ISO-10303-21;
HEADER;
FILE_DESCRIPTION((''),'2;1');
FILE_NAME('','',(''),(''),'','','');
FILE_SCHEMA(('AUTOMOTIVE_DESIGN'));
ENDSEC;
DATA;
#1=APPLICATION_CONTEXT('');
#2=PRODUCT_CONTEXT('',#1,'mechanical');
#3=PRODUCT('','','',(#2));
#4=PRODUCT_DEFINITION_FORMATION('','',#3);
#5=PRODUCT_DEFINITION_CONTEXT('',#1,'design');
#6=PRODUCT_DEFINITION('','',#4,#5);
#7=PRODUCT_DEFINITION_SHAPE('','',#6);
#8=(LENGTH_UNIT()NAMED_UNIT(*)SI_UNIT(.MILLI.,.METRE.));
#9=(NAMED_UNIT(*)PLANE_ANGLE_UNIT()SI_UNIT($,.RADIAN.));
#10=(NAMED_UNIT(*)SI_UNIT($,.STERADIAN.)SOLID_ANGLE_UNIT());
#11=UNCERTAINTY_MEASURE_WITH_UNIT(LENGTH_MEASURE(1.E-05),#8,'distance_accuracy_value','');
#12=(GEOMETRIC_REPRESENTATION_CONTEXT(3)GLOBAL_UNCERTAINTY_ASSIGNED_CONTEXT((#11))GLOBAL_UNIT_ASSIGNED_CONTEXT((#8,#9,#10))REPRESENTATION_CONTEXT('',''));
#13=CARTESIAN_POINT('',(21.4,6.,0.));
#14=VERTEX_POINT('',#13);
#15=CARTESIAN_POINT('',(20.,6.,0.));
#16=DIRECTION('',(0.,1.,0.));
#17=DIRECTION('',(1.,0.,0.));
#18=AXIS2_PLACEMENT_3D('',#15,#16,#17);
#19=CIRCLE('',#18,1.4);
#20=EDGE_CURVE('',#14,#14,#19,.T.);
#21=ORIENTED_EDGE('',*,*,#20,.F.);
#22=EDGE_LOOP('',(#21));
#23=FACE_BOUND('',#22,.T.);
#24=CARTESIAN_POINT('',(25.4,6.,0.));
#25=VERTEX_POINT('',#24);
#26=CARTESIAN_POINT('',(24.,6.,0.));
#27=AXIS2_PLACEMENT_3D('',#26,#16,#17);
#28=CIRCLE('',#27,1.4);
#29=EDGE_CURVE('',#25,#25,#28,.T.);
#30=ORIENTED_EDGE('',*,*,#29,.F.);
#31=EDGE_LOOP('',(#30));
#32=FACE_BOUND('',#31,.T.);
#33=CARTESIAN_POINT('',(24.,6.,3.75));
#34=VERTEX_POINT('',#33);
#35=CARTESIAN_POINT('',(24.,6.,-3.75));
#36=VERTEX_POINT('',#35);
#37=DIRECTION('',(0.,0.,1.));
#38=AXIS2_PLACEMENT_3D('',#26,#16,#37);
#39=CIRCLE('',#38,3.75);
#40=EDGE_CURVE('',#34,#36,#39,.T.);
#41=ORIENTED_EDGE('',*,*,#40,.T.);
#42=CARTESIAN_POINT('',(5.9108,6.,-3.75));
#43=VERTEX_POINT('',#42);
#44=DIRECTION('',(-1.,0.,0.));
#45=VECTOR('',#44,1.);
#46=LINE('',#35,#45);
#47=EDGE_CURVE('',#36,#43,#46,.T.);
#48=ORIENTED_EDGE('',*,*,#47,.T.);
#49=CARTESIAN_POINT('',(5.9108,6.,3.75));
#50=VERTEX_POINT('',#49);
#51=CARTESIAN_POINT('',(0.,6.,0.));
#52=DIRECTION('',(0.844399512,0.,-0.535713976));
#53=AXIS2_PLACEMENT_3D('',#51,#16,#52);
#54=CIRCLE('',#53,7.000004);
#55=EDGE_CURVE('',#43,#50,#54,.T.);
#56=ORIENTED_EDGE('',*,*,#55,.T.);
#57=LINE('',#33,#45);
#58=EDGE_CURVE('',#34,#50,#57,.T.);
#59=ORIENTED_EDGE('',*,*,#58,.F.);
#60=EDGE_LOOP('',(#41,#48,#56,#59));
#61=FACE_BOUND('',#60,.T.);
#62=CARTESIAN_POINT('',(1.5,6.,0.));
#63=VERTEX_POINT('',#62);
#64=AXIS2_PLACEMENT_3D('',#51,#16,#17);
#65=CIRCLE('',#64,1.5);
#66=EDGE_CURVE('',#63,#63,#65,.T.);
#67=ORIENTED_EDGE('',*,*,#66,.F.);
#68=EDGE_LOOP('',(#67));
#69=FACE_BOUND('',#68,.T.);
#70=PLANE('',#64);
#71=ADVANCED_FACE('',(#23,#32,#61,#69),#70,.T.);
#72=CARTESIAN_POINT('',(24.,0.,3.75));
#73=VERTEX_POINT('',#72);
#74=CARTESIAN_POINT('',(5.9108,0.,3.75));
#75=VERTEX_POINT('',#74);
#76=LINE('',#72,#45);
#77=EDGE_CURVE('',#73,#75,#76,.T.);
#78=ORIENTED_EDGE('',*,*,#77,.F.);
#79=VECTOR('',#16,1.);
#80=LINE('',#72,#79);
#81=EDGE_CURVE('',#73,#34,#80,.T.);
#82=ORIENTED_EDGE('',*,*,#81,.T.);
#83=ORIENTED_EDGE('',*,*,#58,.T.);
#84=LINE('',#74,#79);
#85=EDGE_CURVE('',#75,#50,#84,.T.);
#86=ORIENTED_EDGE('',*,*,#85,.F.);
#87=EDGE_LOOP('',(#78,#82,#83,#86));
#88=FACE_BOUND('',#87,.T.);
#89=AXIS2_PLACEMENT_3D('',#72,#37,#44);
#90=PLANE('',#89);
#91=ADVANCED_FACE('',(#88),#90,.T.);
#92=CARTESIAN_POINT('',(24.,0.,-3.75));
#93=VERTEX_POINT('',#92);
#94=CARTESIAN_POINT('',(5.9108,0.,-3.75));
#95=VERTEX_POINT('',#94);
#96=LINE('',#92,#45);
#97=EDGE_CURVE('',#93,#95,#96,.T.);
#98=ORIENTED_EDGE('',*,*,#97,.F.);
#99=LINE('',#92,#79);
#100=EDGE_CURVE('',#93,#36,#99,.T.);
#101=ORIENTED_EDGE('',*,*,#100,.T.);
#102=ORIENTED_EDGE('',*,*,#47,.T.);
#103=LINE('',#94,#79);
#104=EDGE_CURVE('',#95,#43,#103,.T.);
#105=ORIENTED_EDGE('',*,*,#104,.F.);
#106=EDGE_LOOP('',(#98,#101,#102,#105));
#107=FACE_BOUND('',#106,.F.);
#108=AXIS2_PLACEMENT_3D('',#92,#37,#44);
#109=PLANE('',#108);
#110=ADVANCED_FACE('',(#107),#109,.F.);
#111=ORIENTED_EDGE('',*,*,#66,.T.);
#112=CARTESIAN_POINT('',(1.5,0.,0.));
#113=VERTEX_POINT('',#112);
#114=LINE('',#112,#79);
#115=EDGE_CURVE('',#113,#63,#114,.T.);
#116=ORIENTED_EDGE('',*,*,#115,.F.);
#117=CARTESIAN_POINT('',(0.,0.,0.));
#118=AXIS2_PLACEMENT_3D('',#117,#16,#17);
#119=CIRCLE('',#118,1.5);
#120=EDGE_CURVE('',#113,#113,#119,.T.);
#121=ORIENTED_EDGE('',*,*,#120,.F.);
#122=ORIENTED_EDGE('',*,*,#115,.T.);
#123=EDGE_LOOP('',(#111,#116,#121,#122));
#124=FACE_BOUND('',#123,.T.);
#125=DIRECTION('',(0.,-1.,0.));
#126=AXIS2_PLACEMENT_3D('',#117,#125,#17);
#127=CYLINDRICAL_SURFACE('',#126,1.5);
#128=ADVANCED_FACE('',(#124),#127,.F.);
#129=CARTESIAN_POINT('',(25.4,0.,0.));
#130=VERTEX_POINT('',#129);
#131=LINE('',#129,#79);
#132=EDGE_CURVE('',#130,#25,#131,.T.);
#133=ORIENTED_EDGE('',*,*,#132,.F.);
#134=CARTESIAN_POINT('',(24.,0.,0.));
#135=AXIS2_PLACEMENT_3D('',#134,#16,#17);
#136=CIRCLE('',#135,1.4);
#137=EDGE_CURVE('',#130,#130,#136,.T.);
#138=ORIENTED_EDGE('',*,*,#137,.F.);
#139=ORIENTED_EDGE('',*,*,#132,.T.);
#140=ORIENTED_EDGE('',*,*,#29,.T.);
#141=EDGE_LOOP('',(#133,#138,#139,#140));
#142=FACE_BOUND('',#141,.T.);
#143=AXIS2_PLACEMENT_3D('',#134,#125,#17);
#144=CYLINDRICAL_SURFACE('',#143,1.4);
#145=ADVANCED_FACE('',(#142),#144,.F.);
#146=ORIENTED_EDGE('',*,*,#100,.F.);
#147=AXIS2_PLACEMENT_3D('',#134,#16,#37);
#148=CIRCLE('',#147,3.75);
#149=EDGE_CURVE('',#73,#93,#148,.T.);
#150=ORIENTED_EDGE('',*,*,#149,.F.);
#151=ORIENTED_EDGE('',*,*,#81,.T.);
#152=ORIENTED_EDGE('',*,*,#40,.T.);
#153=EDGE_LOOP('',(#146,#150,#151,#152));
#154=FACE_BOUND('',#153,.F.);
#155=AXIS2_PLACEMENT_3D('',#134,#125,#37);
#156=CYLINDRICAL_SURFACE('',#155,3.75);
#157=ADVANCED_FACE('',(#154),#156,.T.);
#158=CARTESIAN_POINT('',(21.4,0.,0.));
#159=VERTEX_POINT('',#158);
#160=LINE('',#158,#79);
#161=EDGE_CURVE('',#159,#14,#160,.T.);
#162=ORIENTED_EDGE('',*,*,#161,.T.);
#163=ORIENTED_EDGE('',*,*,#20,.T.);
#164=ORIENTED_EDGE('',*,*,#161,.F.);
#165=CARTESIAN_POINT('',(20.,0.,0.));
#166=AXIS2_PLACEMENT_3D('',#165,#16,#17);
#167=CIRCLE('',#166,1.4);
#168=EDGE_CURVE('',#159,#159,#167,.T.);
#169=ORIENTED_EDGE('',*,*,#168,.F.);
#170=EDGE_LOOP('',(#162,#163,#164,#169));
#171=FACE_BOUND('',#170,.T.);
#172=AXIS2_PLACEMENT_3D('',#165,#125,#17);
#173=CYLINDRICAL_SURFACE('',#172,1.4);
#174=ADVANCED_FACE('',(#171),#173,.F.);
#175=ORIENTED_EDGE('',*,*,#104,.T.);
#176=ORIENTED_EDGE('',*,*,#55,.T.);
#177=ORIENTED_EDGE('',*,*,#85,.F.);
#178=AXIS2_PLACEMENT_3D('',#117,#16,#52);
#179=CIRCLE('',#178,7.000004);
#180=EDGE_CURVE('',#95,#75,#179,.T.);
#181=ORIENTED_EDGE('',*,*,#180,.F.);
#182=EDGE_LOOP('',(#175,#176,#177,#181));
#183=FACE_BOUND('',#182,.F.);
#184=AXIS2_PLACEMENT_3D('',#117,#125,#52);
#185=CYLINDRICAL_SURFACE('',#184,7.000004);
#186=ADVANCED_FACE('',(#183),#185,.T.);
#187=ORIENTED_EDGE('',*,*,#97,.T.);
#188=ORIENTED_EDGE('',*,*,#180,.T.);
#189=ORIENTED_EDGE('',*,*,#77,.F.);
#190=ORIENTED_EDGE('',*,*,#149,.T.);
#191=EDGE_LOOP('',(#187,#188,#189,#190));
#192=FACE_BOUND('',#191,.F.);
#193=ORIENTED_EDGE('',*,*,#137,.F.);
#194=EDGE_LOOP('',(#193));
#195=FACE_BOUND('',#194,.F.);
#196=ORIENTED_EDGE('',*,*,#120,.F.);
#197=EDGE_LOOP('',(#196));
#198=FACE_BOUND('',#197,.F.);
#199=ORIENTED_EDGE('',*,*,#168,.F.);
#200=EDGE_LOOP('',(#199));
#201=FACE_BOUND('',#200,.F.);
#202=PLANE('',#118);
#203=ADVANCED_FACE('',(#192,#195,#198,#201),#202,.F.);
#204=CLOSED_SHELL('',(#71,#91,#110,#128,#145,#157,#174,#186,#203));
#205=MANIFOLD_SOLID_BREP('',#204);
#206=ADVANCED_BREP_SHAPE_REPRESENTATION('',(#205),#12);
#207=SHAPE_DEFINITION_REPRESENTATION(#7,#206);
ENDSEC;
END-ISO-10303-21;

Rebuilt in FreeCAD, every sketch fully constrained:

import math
import FreeCAD as App
import Part
import Sketcher

V = App.Vector

doc = App.newDocument("Part")
body = doc.addObject("PartDesign::Body", "Body")

sketch1 = body.newObject("Sketcher::SketchObject", "Sketch")
sketch1.AttachmentSupport = (doc.getObject("XZ_Plane"), [""])
sketch1.MapMode = "FlatFace"
sketch1.addGeometry(Part.ArcOfCircle(Part.Circle(V(24, 0, 0), V(0, 0, 1), 3.8), math.radians(-90), math.radians(90)), False)
sketch1.addGeometry(Part.LineSegment(V(24, -3.8, 0), V(5.9, -3.8, 0)), False)
sketch1.addGeometry(Part.ArcOfCircle(Part.Circle(V(0, 0, 0), V(0, 0, 1), 7), math.radians(32), math.radians(328)), False)
sketch1.addGeometry(Part.LineSegment(V(5.9, 3.8, 0), V(24, 3.8, 0)), False)
sketch1.addGeometry(Part.Circle(V(0, 0, 0), V(0, 0, 1), 1.5), False)
sketch1.addGeometry(Part.Circle(V(20, 0, 0), V(0, 0, 1), 1.4), False)
sketch1.addGeometry(Part.Circle(V(24, 0, 0), V(0, 0, 1), 1.4), False)
sketch1.addConstraint(Sketcher.Constraint("Tangent", 0, 1, 1, 1))
sketch1.addConstraint(Sketcher.Constraint("Coincident", 1, 2, 2, 2))
sketch1.addConstraint(Sketcher.Constraint("Coincident", 2, 1, 3, 1))
sketch1.addConstraint(Sketcher.Constraint("Tangent", 3, 2, 0, 2))
sketch1.addConstraint(Sketcher.Constraint("Horizontal", 1))
sketch1.addConstraint(Sketcher.Constraint("Horizontal", 3))
sketch1.addConstraint(Sketcher.Constraint("Coincident", 2, 3, -1, 1))
sketch1.addConstraint(Sketcher.Constraint("Coincident", 4, 3, -1, 1))
sketch1.addConstraint(Sketcher.Constraint("Coincident", 6, 3, 0, 3))
sketch1.addConstraint(Sketcher.Constraint("Equal", 5, 6))
sketch1.addConstraint(Sketcher.Constraint("PointOnObject", 0, 3, -1))
sketch1.addConstraint(Sketcher.Constraint("PointOnObject", 5, 3, -1))
sketch1.addConstraint(Sketcher.Constraint("Diameter", 4, 3.0))
sketch1.addConstraint(Sketcher.Constraint("Radius", 2, 7.0))
sketch1.addConstraint(Sketcher.Constraint("Diameter", 5, 2.8))
sketch1.addConstraint(Sketcher.Constraint("Radius", 0, 3.75))
sketch1.addConstraint(Sketcher.Constraint("DistanceX", -1, 1, 5, 3, 20.0))
sketch1.addConstraint(Sketcher.Constraint("DistanceX", 5, 3, 0, 3, 4.0))
pad1 = body.newObject("PartDesign::Pad", "Pad")
pad1.Profile = sketch1
pad1.Length = 6
pad1.Reversed = True

doc.recompute()
